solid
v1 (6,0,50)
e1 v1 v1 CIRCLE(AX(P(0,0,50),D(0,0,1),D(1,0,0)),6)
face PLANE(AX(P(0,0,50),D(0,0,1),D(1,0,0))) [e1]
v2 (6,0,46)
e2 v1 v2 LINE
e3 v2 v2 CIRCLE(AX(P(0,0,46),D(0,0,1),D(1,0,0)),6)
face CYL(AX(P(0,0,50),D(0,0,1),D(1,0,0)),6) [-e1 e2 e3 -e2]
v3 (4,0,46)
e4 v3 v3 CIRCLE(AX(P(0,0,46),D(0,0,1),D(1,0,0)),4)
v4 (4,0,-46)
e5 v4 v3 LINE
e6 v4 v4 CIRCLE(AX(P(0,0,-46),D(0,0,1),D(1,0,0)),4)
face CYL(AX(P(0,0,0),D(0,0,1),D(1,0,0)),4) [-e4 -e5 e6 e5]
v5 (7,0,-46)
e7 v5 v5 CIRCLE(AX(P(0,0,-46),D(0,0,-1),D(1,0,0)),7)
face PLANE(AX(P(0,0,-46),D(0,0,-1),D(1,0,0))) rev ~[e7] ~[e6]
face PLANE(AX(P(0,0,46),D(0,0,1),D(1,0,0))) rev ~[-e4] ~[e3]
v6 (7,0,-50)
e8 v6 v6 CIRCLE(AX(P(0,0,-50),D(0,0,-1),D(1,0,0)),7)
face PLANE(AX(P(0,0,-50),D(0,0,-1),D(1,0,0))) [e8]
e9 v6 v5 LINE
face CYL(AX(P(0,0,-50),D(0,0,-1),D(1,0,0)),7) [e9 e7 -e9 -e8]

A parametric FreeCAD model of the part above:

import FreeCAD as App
import Part
import Sketcher

V = App.Vector

doc = App.newDocument("Part")
body = doc.addObject("PartDesign::Body", "Body")

# Sketch on XY plane
sketch1 = doc.addObject("Sketcher::SketchObject", "Sketch")
body.addObject(sketch1)
sketch1.AttachmentSupport = (doc.XY_Plane, [""])
sketch1.MapMode = "FlatFace"
sketch1.addGeometry(Part.Circle(V(0, 0, 0), V(0, 0, 1), 4), False)
sketch1.addConstraint([
    Sketcher.Constraint("Coincident", 0, 3, -1, 1),
    Sketcher.Constraint("Diameter", 0, 8.0),
])
pad1 = doc.addObject("PartDesign::Pad", "Pad")
body.addObject(pad1)
pad1.Profile = sketch1
pad1.Length = 100
pad1.Midplane = True

# Sketch on XY plane
sketch2 = doc.addObject("Sketcher::SketchObject", "Sketch001")
body.addObject(sketch2)
sketch2.AttachmentSupport = (doc.XY_Plane, [""])
sketch2.MapMode = "FlatFace"
sketch2.AttachmentOffset = App.Placement(V(0, 0, 50), App.Rotation())
sketch2.addGeometry(Part.Circle(V(0, 0, 0), V(0, 0, 1), 6), False)
sketch2.addConstraint([
    Sketcher.Constraint("Coincident", 0, 3, -1, 1),
    Sketcher.Constraint("Diameter", 0, 12.0),
])
pad2 = doc.addObject("PartDesign::Pad", "Pad001")
body.addObject(pad2)
pad2.Profile = sketch2
pad2.Length = 4
pad2.Reversed = True

# Sketch on XY plane
sketch3 = doc.addObject("Sketcher::SketchObject", "Sketch002")
body.addObject(sketch3)
sketch3.AttachmentSupport = (doc.XY_Plane, [""])
sketch3.MapMode = "FlatFace"
sketch3.AttachmentOffset = App.Placement(V(0, 0, -50), App.Rotation())
sketch3.addGeometry(Part.Circle(V(0, 0, 0), V(0, 0, 1), 7), False)
sketch3.addConstraint([
    Sketcher.Constraint("Coincident", 0, 3, -1, 1),
    Sketcher.Constraint("Diameter", 0, 14.0),
])
pad3 = doc.addObject("PartDesign::Pad", "Pad002")
body.addObject(pad3)
pad3.Profile = sketch3
pad3.Length = 4

doc.recompute()
